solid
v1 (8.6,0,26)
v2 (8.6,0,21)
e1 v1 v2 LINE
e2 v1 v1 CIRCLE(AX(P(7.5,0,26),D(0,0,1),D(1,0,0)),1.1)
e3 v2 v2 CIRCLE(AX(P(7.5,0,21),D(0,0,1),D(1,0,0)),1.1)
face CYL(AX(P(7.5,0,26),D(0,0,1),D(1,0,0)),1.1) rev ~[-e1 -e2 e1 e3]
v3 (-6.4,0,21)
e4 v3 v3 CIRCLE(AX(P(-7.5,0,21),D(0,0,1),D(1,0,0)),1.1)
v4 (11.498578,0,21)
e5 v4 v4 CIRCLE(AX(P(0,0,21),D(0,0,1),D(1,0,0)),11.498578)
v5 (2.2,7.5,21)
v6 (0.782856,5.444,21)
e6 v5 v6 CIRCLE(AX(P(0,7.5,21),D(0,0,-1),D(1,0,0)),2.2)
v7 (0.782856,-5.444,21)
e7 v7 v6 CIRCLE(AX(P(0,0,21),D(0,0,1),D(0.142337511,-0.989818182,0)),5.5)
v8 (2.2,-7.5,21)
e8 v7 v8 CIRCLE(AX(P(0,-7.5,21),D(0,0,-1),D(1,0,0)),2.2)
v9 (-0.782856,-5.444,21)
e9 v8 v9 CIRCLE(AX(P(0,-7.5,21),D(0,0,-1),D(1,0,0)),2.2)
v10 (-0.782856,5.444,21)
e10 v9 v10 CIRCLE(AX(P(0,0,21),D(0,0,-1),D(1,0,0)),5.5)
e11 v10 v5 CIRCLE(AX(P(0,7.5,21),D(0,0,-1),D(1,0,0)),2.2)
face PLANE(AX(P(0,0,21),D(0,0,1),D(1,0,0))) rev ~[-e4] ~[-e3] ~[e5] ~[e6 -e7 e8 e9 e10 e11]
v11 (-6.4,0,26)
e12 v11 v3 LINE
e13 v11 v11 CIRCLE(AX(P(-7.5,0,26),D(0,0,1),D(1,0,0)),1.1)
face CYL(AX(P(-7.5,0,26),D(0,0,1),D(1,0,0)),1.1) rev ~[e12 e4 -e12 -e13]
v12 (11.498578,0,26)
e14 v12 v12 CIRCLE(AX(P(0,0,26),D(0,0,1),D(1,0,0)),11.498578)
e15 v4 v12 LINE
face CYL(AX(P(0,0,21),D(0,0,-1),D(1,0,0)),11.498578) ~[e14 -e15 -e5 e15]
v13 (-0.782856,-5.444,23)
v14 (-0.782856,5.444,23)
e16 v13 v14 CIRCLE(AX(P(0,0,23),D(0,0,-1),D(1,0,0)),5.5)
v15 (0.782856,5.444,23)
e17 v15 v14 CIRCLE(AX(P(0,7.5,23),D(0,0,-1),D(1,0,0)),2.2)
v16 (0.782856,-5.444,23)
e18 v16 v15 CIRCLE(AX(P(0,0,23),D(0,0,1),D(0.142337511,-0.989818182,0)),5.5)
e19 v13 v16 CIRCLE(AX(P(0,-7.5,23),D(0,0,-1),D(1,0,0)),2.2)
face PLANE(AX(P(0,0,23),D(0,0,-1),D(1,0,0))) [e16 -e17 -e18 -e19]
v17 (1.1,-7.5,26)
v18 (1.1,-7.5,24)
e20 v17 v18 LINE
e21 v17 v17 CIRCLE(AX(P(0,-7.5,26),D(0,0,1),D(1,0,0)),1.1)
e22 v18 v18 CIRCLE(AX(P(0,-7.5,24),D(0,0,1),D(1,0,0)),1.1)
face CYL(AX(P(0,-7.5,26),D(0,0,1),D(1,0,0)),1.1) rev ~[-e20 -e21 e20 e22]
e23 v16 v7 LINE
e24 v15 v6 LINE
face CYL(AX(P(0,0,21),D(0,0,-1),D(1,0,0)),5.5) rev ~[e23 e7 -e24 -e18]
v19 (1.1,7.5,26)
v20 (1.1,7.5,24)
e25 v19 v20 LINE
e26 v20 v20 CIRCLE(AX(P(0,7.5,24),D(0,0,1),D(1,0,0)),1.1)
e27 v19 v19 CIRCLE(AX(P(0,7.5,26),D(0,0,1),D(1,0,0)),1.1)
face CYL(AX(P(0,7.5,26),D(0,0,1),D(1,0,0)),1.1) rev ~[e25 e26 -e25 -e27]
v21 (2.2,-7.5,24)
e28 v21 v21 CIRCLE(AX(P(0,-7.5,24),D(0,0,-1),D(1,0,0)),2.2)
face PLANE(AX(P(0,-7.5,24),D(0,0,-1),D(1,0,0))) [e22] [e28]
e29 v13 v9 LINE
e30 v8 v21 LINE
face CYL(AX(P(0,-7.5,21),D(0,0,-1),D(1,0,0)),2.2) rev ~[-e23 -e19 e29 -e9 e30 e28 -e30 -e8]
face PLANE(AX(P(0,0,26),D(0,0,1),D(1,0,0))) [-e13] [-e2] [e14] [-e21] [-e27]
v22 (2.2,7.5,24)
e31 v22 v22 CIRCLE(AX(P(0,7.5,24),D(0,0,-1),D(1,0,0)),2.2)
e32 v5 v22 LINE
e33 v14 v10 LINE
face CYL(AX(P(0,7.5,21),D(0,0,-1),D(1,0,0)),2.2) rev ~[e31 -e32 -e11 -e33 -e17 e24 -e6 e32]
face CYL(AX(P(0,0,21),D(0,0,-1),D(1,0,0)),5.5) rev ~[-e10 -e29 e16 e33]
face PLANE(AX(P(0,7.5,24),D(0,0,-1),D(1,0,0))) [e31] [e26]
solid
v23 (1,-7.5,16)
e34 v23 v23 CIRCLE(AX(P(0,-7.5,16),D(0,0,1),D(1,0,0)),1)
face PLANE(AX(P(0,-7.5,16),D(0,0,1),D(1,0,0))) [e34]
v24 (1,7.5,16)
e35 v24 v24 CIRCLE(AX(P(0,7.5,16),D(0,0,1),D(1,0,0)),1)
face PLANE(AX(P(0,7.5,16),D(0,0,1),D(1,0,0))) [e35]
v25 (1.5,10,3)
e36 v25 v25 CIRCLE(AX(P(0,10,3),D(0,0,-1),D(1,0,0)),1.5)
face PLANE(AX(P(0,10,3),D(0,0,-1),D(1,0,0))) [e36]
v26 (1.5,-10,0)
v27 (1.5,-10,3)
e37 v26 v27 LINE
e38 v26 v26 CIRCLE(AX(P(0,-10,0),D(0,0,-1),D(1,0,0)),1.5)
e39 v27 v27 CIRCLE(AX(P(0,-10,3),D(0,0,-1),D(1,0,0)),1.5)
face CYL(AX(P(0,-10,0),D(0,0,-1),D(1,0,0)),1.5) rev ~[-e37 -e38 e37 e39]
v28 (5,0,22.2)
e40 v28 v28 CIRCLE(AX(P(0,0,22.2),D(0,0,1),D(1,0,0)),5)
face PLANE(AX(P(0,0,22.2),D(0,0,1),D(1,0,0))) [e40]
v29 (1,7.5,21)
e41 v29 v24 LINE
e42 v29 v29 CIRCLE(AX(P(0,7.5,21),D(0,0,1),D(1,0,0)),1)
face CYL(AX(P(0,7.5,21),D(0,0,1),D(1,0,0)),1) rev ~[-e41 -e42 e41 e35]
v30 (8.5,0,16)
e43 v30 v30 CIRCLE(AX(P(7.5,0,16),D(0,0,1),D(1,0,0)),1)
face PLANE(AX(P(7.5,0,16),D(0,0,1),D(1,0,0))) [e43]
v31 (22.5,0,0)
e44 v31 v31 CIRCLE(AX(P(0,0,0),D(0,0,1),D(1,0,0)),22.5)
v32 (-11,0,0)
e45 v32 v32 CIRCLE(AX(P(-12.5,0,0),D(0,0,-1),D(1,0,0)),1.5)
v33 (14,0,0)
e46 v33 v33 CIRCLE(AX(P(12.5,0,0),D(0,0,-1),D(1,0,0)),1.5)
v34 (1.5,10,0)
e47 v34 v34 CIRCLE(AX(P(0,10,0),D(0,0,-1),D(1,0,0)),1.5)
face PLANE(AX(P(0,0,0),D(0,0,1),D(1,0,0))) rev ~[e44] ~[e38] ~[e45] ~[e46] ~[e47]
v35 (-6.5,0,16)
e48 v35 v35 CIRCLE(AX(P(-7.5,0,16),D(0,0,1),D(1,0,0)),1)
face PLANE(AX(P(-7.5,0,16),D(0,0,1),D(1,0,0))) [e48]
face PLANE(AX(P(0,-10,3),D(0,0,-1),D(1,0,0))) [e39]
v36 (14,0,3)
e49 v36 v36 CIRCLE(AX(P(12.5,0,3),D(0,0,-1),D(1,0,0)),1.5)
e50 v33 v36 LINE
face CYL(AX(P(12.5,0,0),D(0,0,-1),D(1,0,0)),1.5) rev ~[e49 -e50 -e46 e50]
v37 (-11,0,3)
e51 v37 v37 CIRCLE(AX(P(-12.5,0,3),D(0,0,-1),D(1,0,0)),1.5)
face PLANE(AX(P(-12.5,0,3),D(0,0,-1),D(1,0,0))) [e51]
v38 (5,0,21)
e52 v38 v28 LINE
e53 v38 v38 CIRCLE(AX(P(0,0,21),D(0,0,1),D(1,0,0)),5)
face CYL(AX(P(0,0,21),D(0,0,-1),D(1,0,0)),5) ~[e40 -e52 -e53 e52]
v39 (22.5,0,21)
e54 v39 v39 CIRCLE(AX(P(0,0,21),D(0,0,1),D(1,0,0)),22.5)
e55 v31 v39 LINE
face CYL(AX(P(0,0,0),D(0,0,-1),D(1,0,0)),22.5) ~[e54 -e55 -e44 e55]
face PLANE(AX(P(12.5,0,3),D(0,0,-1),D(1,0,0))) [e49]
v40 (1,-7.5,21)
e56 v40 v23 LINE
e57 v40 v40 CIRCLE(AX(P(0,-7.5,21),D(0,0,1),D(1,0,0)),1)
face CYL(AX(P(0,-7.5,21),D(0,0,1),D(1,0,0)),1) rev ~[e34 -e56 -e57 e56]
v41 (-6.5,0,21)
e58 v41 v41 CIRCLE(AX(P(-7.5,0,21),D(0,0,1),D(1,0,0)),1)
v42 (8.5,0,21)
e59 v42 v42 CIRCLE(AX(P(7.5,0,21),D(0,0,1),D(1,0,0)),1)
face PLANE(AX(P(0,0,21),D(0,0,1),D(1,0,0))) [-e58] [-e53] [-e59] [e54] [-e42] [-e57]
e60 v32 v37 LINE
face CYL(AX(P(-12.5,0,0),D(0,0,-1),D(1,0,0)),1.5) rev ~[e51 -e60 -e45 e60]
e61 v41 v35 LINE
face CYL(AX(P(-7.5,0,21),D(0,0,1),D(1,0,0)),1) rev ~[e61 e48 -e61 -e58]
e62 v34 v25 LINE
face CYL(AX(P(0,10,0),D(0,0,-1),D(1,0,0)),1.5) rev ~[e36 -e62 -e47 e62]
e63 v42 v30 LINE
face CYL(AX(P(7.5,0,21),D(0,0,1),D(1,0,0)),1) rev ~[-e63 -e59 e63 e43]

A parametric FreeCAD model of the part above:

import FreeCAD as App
import Part
import Sketcher

V = App.Vector

doc = App.newDocument("Part")
body = doc.addObject("PartDesign::Body", "Body")

sketch1 = body.newObject("Sketcher::SketchObject", "Sketch")
sketch1.AttachmentSupport = (doc.getObject("XY_Plane"), [""])
sketch1.MapMode = "FlatFace"
sketch1.addGeometry(Part.Circle(V(0, 0, 0), V(0, 0, 1), 22), False)
sketch1.addConstraint([
    Sketcher.Constraint("Coincident", 0, 3, -1, 1),
    Sketcher.Constraint("Diameter", 0, 45.0),
])
pad1 = body.newObject("PartDesign::Pad", "Pad")
pad1.Profile = sketch1
pad1.Length = 21

sketch2 = body.newObject("Sketcher::SketchObject", "Sketch001")
sketch2.AttachmentSupport = (doc.getObject("XY_Plane"), [""])
sketch2.MapMode = "FlatFace"
sketch2.addGeometry([
    Part.Circle(V(0, -10, 0), V(0, 0, 1), 1.5),
    Part.Circle(V(0, 10, 0), V(0, 0, 1), 1.5),
    Part.Circle(V(12.5, 0, 0), V(0, 0, 1), 1.5),
    Part.Circle(V(-12.5, 0, 0), V(0, 0, 1), 1.5),
], False)
sketch2.addConstraint([
    Sketcher.Constraint("Equal", 0, 1),
    Sketcher.Constraint("Equal", 1, 2),
    Sketcher.Constraint("Equal", 2, 3),
    Sketcher.Constraint("Symmetric", 0, 3, 1, 3, -1, 1),
    Sketcher.Constraint("Symmetric", 2, 3, 3, 3, -1, 1),
    Sketcher.Constraint("PointOnObject", 0, 3, -2),
    Sketcher.Constraint("PointOnObject", 2, 3, -1),
    Sketcher.Constraint("Diameter", 0, 3.0),
    Sketcher.Constraint("DistanceY", 0, 3, -1, 1, 10.0),
    Sketcher.Constraint("DistanceX", 3, 3, 2, 3, 25.0),
])
pocket1 = body.newObject("PartDesign::Pocket", "Pocket")
pocket1.Profile = sketch2
pocket1.Length = 3
pocket1.Reversed = True

sketch3 = body.newObject("Sketcher::SketchObject", "Sketch002")
sketch3.AttachmentSupport = (doc.getObject("XY_Plane"), [""])
sketch3.MapMode = "FlatFace"
sketch3.AttachmentOffset = App.Placement(V(0, 0, 21), App.Rotation())
sketch3.addGeometry(Part.Circle(V(0, 0, 0), V(0, 0, 1), 5), False)
sketch3.addConstraint([
    Sketcher.Constraint("Coincident", 0, 3, -1, 1),
    Sketcher.Constraint("Diameter", 0, 10.0),
])
pad2 = body.newObject("PartDesign::Pad", "Pad001")
pad2.Profile = sketch3
pad2.Length = 1.2

sketch4 = body.newObject("Sketcher::SketchObject", "Sketch003")
sketch4.AttachmentSupport = (doc.getObject("XY_Plane"), [""])
sketch4.MapMode = "FlatFace"
sketch4.AttachmentOffset = App.Placement(V(0, 0, 21), App.Rotation())
sketch4.addGeometry([
    Part.Circle(V(0, 7.5, 0), V(0, 0, 1), 1),
    Part.Circle(V(0, -7.5, 0), V(0, 0, 1), 1),
    Part.Circle(V(7.5, 0, 0), V(0, 0, 1), 1),
    Part.Circle(V(-7.5, 0, 0), V(0, 0, 1), 1),
], False)
sketch4.addConstraint([
    Sketcher.Constraint("Equal", 0, 1),
    Sketcher.Constraint("Equal", 1, 2),
    Sketcher.Constraint("Equal", 2, 3),
    Sketcher.Constraint("Symmetric", 0, 3, 1, 3, -1, 1),
    Sketcher.Constraint("Symmetric", 2, 3, 3, 3, -1, 1),
    Sketcher.Constraint("PointOnObject", 0, 3, -2),
    Sketcher.Constraint("PointOnObject", 2, 3, -1),
    Sketcher.Constraint("Diameter", 0, 2.0),
    Sketcher.Constraint("DistanceY", 1, 3, 0, 3, 15.0),
    Sketcher.Constraint("DistanceX", 3, 3, 2, 3, 15.0),
])
pocket2 = body.newObject("PartDesign::Pocket", "Pocket001")
pocket2.Profile = sketch4
pocket2.Length = 5
body2 = doc.addObject("PartDesign::Body", "Body001")

sketch5 = body2.newObject("Sketcher::SketchObject", "Sketch004")
sketch5.AttachmentSupport = (doc.getObject("XY_Plane001"), [""])
sketch5.MapMode = "FlatFace"
sketch5.AttachmentOffset = App.Placement(V(0, 0, 21), App.Rotation())
sketch5.addGeometry(Part.Circle(V(0, 0, 0), V(0, 0, 1), 11), False)
sketch5.addConstraint([
    Sketcher.Constraint("Coincident", 0, 3, -1, 1),
    Sketcher.Constraint("Diameter", 0, 22.997155),
])
pad3 = body2.newObject("PartDesign::Pad", "Pad002")
pad3.Profile = sketch5
pad3.Length = 5

sketch6 = body2.newObject("Sketcher::SketchObject", "Sketch005")
sketch6.AttachmentSupport = (doc.getObject("XY_Plane001"), [""])
sketch6.MapMode = "FlatFace"
sketch6.AttachmentOffset = App.Placement(V(0, 0, 21), App.Rotation())
sketch6.addGeometry(Part.Circle(V(0, 0, 0), V(0, 0, 1), 6), False)
sketch6.addConstraint([
    Sketcher.Constraint("Coincident", 0, 3, -1, 1),
    Sketcher.Constraint("Diameter", 0, 11.0),
])
pocket3 = body2.newObject("PartDesign::Pocket", "Pocket002")
pocket3.Profile = sketch6
pocket3.Length = 2
pocket3.Reversed = True

sketch7 = body2.newObject("Sketcher::SketchObject", "Sketch006")
sketch7.AttachmentSupport = (doc.getObject("XY_Plane001"), [""])
sketch7.MapMode = "FlatFace"
sketch7.AttachmentOffset = App.Placement(V(0, 0, 26), App.Rotation())
sketch7.addGeometry([
    Part.Circle(V(-7.5, 0, 0), V(0, 0, 1), 1.1),
    Part.Circle(V(0, 7.5, 0), V(0, 0, 1), 1.1),
    Part.Circle(V(7.5, 0, 0), V(0, 0, 1), 1.1),
    Part.Circle(V(0, -7.5, 0), V(0, 0, 1), 1.1),
], False)
sketch7.addConstraint([
    Sketcher.Constraint("Equal", 0, 1),
    Sketcher.Constraint("Equal", 1, 2),
    Sketcher.Constraint("Equal", 2, 3),
    Sketcher.Constraint("Symmetric", 0, 3, 2, 3, -1, 1),
    Sketcher.Constraint("Symmetric", 1, 3, 3, 3, -1, 1),
    Sketcher.Constraint("PointOnObject", 0, 3, -1),
    Sketcher.Constraint("PointOnObject", 1, 3, -2),
    Sketcher.Constraint("Diameter", 0, 2.2),
    Sketcher.Constraint("DistanceX", 0, 3, 2, 3, 15.0),
    Sketcher.Constraint("DistanceY", 3, 3, 1, 3, 15.0),
])
pocket4 = body2.newObject("PartDesign::Pocket", "Pocket003")
pocket4.Profile = sketch7
pocket4.Type = "ThroughAll"

sketch8 = body2.newObject("Sketcher::SketchObject", "Sketch007")
sketch8.AttachmentSupport = (doc.getObject("XY_Plane001"), [""])
sketch8.MapMode = "FlatFace"
sketch8.AttachmentOffset = App.Placement(V(0, 0, 21), App.Rotation())
sketch8.addGeometry([
    Part.Circle(V(0, -7.5, 0), V(0, 0, 1), 2.2),
    Part.Circle(V(0, 7.5, 0), V(0, 0, 1), 2.2),
], False)
sketch8.addConstraint([
    Sketcher.Constraint("Equal", 0, 1),
    Sketcher.Constraint("Symmetric", 0, 3, 1, 3, -1, 1),
    Sketcher.Constraint("PointOnObject", 0, 3, -2),
    Sketcher.Constraint("Diameter", 0, 4.4),
    Sketcher.Constraint("DistanceY", 0, 3, 1, 3, 15.0),
])
pocket5 = body2.newObject("PartDesign::Pocket", "Pocket004")
pocket5.Profile = sketch8
pocket5.Length = 3
pocket5.Reversed = True

doc.recompute()
